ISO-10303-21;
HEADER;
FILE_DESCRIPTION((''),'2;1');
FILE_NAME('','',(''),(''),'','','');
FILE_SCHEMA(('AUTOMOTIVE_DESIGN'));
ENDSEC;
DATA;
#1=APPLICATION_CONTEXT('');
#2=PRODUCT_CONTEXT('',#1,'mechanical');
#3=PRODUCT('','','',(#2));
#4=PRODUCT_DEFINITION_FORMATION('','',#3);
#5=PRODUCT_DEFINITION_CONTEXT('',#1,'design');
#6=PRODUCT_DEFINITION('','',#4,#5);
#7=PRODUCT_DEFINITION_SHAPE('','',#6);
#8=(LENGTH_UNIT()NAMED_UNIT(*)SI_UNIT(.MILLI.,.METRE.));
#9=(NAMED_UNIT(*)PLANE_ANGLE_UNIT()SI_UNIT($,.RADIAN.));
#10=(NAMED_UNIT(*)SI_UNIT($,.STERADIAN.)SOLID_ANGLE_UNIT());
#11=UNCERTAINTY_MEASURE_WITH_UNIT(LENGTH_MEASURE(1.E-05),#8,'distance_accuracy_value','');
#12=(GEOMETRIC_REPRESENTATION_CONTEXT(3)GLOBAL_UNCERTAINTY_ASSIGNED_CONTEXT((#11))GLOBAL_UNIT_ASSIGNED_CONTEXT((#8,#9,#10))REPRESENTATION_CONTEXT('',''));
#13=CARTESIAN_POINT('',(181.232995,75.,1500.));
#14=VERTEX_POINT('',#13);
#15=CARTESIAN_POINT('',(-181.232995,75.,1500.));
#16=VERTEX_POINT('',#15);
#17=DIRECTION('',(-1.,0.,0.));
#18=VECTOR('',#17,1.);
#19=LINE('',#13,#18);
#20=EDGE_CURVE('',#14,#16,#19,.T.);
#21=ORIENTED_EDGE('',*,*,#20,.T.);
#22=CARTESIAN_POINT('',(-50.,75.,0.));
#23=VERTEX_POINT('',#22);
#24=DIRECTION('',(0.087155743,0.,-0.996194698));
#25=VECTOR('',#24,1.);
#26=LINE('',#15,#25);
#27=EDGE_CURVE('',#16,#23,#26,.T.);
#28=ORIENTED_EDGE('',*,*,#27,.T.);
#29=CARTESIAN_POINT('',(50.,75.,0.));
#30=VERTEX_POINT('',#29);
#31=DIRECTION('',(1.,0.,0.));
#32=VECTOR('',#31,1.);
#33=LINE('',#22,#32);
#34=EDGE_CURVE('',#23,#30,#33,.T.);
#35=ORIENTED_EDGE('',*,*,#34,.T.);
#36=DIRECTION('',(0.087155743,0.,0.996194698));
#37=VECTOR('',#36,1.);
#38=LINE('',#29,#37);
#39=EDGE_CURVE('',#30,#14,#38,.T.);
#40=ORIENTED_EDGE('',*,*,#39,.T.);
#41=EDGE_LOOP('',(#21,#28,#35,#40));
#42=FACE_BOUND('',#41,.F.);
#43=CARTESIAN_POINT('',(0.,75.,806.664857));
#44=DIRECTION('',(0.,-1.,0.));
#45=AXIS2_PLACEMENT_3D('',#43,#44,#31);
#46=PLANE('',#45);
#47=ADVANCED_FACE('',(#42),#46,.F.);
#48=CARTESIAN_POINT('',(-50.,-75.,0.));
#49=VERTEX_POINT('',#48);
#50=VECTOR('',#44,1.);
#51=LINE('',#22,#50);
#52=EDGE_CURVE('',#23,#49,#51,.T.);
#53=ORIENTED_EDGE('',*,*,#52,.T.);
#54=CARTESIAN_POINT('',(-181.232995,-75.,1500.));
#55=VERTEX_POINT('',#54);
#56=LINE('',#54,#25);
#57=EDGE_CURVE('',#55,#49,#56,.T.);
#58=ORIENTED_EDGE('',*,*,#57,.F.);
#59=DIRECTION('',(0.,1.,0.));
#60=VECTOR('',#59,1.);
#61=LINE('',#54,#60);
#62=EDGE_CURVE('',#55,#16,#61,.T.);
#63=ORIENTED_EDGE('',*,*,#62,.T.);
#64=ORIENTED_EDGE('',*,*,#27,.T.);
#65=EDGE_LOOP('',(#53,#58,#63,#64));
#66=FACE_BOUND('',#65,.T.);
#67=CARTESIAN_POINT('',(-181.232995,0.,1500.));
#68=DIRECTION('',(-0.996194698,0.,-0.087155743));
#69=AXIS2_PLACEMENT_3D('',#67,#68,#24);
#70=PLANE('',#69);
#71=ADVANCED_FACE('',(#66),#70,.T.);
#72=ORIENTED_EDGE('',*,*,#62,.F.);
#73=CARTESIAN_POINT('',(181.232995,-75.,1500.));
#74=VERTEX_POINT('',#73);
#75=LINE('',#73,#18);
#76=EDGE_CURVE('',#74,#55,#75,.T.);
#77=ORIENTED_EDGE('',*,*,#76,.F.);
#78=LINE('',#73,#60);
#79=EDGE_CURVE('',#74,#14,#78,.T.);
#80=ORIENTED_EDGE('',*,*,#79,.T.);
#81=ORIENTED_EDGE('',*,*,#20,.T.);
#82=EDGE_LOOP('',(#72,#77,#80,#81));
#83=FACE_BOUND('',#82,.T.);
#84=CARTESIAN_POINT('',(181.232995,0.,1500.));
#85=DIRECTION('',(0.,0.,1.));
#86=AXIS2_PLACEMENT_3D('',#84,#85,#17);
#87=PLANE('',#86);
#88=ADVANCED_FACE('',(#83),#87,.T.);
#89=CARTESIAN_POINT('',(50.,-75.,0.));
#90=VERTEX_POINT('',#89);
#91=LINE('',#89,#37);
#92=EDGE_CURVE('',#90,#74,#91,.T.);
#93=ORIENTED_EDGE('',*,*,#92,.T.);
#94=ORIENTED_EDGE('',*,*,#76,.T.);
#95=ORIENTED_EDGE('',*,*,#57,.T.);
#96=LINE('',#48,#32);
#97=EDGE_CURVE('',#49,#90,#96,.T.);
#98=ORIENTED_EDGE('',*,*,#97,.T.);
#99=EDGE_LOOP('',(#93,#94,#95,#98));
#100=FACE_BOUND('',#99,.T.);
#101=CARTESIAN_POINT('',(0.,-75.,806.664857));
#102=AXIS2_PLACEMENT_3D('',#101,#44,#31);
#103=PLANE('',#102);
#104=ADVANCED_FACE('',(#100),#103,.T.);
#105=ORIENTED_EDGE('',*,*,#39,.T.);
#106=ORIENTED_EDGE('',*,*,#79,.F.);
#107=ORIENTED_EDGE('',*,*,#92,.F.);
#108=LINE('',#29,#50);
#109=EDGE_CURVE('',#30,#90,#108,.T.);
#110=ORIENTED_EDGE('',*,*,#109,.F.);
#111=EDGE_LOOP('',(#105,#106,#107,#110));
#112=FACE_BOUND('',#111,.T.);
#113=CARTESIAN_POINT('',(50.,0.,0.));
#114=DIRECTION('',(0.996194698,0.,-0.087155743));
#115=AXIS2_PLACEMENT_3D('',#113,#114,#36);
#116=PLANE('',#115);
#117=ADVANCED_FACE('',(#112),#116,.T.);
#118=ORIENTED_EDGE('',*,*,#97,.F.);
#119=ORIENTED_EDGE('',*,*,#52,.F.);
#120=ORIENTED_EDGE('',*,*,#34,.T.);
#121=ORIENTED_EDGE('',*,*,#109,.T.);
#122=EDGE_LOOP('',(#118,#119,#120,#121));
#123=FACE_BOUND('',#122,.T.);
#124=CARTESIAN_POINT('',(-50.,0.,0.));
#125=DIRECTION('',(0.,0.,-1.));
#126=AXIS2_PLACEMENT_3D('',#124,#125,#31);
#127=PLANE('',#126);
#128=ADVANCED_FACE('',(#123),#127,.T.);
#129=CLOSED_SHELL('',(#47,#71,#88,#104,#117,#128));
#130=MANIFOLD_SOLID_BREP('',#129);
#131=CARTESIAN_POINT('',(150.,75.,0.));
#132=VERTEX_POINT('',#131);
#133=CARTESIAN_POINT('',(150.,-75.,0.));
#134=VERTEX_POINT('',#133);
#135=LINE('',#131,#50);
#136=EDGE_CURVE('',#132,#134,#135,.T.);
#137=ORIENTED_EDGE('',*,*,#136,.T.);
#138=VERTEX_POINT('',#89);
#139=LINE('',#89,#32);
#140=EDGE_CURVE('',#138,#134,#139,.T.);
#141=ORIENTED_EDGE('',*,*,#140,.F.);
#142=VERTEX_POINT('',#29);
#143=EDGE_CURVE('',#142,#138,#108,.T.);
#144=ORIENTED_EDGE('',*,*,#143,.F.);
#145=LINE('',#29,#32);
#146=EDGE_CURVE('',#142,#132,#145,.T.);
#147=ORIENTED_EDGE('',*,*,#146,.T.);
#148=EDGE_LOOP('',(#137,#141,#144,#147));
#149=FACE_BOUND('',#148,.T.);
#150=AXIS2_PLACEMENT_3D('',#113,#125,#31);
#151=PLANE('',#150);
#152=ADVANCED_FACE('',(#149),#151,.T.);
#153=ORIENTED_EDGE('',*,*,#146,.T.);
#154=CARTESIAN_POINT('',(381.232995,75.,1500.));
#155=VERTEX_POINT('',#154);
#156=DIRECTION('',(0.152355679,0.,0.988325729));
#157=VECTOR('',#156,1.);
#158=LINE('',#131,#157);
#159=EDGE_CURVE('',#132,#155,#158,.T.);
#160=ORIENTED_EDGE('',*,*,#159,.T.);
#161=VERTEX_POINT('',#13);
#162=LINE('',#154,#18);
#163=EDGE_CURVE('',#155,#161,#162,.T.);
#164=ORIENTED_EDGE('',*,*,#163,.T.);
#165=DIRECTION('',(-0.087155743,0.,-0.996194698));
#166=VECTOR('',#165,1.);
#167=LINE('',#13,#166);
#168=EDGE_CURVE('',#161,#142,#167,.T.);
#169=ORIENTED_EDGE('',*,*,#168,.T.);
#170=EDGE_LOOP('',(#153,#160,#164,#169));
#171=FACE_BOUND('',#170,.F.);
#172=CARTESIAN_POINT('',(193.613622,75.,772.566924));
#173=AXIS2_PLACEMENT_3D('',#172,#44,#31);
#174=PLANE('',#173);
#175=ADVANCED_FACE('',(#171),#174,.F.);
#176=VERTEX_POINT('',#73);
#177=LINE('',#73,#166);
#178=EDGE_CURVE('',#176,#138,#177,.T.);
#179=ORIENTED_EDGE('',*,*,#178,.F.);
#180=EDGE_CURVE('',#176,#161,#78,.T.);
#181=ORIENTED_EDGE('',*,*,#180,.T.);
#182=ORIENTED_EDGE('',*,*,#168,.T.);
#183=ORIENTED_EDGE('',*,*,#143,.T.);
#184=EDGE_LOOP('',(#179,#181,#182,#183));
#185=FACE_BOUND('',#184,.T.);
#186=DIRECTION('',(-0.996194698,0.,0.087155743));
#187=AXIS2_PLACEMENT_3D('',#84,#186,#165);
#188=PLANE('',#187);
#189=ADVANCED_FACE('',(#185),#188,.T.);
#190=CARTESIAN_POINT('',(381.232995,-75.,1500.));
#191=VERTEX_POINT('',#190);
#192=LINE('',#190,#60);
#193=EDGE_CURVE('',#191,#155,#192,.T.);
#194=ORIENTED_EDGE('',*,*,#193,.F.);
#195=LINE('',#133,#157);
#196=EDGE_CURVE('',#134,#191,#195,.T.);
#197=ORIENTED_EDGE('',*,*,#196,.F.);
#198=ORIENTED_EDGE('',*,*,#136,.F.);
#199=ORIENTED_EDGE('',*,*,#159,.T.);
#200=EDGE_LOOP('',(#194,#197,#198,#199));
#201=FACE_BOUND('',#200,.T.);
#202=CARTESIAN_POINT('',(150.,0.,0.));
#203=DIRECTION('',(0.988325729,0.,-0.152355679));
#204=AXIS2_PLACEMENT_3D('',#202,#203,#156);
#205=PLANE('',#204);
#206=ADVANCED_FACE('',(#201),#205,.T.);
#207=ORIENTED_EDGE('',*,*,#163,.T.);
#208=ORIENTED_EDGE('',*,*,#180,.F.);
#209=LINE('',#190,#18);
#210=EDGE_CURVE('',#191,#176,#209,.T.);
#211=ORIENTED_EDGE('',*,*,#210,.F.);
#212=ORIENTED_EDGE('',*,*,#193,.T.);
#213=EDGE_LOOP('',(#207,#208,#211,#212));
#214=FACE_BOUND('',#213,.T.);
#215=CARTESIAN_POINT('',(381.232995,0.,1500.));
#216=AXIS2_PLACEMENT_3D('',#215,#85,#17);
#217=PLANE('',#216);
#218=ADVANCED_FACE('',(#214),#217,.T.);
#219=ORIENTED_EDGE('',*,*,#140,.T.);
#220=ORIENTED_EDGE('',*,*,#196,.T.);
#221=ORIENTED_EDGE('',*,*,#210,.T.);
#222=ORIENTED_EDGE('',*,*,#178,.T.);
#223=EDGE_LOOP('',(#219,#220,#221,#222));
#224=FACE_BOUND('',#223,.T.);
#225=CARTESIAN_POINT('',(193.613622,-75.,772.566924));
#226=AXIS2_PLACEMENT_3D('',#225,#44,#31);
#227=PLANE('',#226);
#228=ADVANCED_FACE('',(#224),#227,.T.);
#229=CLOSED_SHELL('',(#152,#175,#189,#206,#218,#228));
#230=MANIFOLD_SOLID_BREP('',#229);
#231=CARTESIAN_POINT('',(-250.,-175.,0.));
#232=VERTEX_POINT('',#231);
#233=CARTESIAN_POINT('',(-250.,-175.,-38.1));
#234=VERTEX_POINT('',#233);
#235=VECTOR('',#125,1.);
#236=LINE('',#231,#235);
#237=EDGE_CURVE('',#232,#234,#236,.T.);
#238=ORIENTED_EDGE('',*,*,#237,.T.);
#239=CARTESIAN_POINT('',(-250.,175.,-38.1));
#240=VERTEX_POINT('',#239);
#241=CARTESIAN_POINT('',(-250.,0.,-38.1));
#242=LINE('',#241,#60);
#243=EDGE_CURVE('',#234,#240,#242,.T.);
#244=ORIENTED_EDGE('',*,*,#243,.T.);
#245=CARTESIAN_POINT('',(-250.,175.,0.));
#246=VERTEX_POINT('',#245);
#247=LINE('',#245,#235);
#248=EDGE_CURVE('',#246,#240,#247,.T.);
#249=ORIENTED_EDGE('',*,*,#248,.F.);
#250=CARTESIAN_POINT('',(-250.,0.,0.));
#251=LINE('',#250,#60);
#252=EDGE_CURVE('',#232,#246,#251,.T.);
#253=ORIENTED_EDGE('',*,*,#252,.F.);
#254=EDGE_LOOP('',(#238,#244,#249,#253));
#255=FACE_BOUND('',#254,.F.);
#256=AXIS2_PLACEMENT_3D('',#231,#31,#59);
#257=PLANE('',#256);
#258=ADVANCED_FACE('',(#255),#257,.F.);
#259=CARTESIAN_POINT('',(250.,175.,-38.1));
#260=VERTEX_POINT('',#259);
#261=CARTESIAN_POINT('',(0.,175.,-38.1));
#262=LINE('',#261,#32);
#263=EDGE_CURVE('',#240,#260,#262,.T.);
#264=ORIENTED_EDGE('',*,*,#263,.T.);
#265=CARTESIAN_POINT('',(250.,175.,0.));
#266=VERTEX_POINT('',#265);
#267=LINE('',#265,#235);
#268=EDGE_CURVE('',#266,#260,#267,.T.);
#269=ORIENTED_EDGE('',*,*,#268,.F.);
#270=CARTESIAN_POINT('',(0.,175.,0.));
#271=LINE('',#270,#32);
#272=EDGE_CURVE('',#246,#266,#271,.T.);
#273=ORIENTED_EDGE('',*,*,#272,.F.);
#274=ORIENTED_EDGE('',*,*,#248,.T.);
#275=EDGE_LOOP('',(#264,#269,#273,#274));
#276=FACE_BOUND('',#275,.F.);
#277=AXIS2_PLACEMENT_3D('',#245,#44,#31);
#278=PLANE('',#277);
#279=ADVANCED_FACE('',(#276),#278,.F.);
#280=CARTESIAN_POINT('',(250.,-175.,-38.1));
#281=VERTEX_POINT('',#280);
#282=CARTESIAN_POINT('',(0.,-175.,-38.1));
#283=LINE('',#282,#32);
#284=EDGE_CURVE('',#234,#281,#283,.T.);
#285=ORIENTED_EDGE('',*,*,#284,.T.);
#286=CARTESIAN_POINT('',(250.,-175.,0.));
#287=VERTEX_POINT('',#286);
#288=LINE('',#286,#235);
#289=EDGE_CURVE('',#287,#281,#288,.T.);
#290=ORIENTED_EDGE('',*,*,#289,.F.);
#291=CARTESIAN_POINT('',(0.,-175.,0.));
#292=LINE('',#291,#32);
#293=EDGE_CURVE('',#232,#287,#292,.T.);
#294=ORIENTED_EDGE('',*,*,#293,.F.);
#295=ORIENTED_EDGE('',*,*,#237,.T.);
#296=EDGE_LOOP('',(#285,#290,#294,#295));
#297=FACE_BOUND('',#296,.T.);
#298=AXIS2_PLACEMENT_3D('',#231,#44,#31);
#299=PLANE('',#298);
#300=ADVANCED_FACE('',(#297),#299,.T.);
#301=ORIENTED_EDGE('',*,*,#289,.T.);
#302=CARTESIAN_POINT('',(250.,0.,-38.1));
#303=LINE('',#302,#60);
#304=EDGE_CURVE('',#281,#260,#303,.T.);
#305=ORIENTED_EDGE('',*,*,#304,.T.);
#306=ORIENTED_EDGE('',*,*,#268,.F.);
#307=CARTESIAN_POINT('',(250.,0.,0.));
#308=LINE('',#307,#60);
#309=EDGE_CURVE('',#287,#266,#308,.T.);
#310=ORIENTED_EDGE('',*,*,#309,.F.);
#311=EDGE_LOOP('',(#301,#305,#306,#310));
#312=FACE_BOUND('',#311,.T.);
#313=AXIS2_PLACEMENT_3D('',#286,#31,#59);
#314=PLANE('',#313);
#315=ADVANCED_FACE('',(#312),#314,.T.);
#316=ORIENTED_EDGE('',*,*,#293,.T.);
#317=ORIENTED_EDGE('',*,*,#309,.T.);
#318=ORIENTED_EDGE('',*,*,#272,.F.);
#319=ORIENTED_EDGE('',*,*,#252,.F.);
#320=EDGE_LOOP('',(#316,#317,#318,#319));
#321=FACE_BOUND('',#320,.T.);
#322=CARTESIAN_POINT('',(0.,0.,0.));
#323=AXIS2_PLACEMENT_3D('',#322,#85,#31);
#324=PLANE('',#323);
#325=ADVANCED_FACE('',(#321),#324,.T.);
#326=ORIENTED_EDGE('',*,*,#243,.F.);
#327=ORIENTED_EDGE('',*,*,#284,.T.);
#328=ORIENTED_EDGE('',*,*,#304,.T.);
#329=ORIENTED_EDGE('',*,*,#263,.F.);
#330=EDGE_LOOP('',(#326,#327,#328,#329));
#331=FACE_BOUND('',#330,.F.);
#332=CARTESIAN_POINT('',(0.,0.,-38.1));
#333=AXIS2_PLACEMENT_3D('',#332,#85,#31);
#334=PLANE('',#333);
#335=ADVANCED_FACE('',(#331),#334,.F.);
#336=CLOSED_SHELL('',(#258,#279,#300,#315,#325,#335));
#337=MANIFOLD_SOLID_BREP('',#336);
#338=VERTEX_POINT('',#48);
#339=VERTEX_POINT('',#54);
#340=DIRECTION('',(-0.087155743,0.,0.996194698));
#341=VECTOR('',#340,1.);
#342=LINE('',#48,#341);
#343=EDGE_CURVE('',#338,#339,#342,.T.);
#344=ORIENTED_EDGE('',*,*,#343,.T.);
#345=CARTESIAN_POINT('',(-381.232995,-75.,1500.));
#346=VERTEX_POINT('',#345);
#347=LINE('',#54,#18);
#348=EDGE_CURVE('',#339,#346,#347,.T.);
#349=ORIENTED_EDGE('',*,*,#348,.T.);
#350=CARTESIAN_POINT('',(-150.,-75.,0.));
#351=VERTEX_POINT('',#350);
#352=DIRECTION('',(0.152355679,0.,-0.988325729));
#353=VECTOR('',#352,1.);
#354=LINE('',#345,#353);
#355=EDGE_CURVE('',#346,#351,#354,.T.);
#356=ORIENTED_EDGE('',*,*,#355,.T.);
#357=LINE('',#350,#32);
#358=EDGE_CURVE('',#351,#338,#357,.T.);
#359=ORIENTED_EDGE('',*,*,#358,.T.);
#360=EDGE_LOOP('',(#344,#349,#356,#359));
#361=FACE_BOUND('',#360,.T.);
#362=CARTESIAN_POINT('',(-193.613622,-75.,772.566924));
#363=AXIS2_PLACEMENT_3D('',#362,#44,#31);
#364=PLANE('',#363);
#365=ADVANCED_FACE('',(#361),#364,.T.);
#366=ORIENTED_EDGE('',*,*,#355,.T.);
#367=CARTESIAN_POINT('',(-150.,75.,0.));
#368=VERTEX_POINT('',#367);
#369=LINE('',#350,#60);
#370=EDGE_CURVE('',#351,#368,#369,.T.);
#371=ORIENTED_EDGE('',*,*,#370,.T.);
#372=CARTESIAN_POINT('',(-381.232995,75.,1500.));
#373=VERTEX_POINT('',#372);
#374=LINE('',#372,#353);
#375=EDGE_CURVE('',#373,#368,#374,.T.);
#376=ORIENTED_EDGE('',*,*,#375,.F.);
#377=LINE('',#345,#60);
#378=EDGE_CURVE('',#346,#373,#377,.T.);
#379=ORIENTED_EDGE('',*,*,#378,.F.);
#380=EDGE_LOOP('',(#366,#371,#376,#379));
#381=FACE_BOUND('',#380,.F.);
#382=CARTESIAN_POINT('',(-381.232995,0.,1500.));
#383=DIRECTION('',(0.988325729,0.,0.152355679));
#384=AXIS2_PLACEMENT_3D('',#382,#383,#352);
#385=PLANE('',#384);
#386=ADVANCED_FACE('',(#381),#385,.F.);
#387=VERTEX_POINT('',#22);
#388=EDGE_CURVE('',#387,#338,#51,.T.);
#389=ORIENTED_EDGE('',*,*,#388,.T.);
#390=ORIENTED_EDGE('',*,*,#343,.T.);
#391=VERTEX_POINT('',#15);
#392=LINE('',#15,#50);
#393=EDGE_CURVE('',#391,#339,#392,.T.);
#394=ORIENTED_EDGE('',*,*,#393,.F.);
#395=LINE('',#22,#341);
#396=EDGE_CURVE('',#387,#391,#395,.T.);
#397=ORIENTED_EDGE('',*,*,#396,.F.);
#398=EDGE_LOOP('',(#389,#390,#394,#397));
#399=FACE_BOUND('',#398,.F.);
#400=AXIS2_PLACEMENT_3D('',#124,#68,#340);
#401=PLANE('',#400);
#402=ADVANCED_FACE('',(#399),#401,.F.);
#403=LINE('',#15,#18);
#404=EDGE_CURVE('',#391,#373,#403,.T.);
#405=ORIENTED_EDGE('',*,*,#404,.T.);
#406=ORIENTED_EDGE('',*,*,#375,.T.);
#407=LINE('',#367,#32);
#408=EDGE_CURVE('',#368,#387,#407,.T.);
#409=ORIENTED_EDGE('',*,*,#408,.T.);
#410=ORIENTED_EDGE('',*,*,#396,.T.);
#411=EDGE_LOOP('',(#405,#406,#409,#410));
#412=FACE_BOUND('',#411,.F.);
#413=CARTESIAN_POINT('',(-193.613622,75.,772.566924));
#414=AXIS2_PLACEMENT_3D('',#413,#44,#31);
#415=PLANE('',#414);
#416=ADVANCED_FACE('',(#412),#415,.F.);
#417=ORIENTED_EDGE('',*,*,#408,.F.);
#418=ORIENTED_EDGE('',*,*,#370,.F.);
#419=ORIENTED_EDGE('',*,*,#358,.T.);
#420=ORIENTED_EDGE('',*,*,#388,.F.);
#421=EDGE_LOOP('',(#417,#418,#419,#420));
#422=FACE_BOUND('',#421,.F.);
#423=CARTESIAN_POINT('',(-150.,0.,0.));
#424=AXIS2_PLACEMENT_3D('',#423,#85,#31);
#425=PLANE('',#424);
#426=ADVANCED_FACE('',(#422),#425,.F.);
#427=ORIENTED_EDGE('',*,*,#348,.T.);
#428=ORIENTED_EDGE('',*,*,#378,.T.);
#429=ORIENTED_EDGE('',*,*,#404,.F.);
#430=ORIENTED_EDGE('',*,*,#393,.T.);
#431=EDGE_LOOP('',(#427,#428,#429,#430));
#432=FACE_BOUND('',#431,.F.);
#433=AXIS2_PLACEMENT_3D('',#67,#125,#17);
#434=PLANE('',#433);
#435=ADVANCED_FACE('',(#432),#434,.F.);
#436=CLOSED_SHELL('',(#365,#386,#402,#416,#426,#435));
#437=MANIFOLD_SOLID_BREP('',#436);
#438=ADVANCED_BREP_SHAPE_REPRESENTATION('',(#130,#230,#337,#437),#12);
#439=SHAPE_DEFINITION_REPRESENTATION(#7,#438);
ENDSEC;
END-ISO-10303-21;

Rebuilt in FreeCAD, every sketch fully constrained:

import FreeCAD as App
import Part
import Sketcher

V = App.Vector
Q = App.Units.Quantity


def add_polygon(sketch, points):
    """Adds a closed chain of lines whose ends are joined by coincident constraints."""
    first, n = sketch.GeometryCount, len(points)
    for a, b in zip(points, points[1:] + points[:1]):
        sketch.addGeometry(Part.LineSegment(App.Vector(*a, 0), App.Vector(*b, 0)), False)
    for i in range(n):
        sketch.addConstraint(Sketcher.Constraint("Coincident", first + i, 2, first + (i + 1) % n, 1))

doc = App.newDocument("Part")
body = doc.addObject("PartDesign::Body", "Body")
body.AllowCompound = True

# Sketch on XZ plane
sketch1 = body.newObject("Sketcher::SketchObject", "Sketch")
sketch1.AttachmentSupport = (doc.getObject("XZ_Plane"), [""])
sketch1.MapMode = "FlatFace"
add_polygon(sketch1, [(-150, 0), (-50, 0), (-181, 1500), (-381, 1500)])  # lines 0-3
add_polygon(sketch1, [(181, 1500), (50, 0), (150, 0), (381, 1500)])  # lines 4-7
sketch1.addConstraint([
    Sketcher.Constraint("Horizontal", 0),
    Sketcher.Constraint("Horizontal", 2),
    Sketcher.Constraint("Horizontal", 5),
    Sketcher.Constraint("Horizontal", 7),
    Sketcher.Constraint("Symmetric", 0, 2, 4, 2, -1, 1),
    Sketcher.Constraint("Symmetric", 3, 2, 5, 2, -2),
    Sketcher.Constraint("Symmetric", 2, 2, 6, 2, -2),
    Sketcher.Constraint("Equal", 2, 7),
    Sketcher.Constraint("DistanceX", 0, 1, 0, 2, Q("100 mm")),
    Sketcher.Constraint("DistanceX", 2, 2, 2, 1, Q("200 mm")),
    Sketcher.Constraint("Angle", 1, Q("95 deg")),
    Sketcher.Constraint("DistanceX", 0, 2, -1, 1, Q("50 mm")),
    Sketcher.Constraint("DistanceY", -1, 1, 1, 2, Q("1500 mm")),
])
pad1 = body.newObject("PartDesign::Pad", "Pad")
pad1.Profile = sketch1
pad1.Length = 150
pad1.Midplane = True
body2 = doc.addObject("PartDesign::Body", "Body001")

# Sketch on XZ plane
sketch2 = body2.newObject("Sketcher::SketchObject", "Sketch001")
sketch2.AttachmentSupport = (doc.getObject("XZ_Plane001"), [""])
sketch2.MapMode = "FlatFace"
add_polygon(sketch2, [(-181, 1500), (-50, 0), (50, 0), (181, 1500)])  # lines 0-3
sketch2.addConstraint([
    Sketcher.Constraint("Horizontal", 1),
    Sketcher.Constraint("Horizontal", 3),
    Sketcher.Constraint("Symmetric", 0, 2, 1, 2, -1, 1),
    Sketcher.Constraint("Equal", 0, 2),
    Sketcher.Constraint("DistanceX", 1, 1, 1, 2, Q("100 mm")),
    Sketcher.Constraint("Angle", 0, Q("-85 deg")),
    Sketcher.Constraint("DistanceY", -1, 1, 2, 2, Q("1500 mm")),
])
pad2 = body2.newObject("PartDesign::Pad", "Pad001")
pad2.Profile = sketch2
pad2.Length = 150
pad2.Midplane = True
body3 = doc.addObject("PartDesign::Body", "Body002")

# Sketch on XY plane
sketch3 = body3.newObject("Sketcher::SketchObject", "Sketch002")
sketch3.AttachmentSupport = (doc.getObject("XY_Plane002"), [""])
sketch3.MapMode = "FlatFace"
add_polygon(sketch3, [(-250, 175), (-250, -175), (250, -175), (250, 175)])  # lines 0-3
sketch3.addConstraint([
    Sketcher.Constraint("Vertical", 0),
    Sketcher.Constraint("Horizontal", 1),
    Sketcher.Constraint("Vertical", 2),
    Sketcher.Constraint("Horizontal", 3),
    Sketcher.Constraint("Symmetric", 0, 2, 2, 2, -1, 1),
    Sketcher.Constraint("DistanceX", 1, 1, 1, 2, Q("500 mm")),
    Sketcher.Constraint("DistanceY", 0, 2, 0, 1, Q("350 mm")),
])
pad3 = body3.newObject("PartDesign::Pad", "Pad002")
pad3.Profile = sketch3
pad3.Length = 38.1
pad3.Reversed = True

doc.recompute()
